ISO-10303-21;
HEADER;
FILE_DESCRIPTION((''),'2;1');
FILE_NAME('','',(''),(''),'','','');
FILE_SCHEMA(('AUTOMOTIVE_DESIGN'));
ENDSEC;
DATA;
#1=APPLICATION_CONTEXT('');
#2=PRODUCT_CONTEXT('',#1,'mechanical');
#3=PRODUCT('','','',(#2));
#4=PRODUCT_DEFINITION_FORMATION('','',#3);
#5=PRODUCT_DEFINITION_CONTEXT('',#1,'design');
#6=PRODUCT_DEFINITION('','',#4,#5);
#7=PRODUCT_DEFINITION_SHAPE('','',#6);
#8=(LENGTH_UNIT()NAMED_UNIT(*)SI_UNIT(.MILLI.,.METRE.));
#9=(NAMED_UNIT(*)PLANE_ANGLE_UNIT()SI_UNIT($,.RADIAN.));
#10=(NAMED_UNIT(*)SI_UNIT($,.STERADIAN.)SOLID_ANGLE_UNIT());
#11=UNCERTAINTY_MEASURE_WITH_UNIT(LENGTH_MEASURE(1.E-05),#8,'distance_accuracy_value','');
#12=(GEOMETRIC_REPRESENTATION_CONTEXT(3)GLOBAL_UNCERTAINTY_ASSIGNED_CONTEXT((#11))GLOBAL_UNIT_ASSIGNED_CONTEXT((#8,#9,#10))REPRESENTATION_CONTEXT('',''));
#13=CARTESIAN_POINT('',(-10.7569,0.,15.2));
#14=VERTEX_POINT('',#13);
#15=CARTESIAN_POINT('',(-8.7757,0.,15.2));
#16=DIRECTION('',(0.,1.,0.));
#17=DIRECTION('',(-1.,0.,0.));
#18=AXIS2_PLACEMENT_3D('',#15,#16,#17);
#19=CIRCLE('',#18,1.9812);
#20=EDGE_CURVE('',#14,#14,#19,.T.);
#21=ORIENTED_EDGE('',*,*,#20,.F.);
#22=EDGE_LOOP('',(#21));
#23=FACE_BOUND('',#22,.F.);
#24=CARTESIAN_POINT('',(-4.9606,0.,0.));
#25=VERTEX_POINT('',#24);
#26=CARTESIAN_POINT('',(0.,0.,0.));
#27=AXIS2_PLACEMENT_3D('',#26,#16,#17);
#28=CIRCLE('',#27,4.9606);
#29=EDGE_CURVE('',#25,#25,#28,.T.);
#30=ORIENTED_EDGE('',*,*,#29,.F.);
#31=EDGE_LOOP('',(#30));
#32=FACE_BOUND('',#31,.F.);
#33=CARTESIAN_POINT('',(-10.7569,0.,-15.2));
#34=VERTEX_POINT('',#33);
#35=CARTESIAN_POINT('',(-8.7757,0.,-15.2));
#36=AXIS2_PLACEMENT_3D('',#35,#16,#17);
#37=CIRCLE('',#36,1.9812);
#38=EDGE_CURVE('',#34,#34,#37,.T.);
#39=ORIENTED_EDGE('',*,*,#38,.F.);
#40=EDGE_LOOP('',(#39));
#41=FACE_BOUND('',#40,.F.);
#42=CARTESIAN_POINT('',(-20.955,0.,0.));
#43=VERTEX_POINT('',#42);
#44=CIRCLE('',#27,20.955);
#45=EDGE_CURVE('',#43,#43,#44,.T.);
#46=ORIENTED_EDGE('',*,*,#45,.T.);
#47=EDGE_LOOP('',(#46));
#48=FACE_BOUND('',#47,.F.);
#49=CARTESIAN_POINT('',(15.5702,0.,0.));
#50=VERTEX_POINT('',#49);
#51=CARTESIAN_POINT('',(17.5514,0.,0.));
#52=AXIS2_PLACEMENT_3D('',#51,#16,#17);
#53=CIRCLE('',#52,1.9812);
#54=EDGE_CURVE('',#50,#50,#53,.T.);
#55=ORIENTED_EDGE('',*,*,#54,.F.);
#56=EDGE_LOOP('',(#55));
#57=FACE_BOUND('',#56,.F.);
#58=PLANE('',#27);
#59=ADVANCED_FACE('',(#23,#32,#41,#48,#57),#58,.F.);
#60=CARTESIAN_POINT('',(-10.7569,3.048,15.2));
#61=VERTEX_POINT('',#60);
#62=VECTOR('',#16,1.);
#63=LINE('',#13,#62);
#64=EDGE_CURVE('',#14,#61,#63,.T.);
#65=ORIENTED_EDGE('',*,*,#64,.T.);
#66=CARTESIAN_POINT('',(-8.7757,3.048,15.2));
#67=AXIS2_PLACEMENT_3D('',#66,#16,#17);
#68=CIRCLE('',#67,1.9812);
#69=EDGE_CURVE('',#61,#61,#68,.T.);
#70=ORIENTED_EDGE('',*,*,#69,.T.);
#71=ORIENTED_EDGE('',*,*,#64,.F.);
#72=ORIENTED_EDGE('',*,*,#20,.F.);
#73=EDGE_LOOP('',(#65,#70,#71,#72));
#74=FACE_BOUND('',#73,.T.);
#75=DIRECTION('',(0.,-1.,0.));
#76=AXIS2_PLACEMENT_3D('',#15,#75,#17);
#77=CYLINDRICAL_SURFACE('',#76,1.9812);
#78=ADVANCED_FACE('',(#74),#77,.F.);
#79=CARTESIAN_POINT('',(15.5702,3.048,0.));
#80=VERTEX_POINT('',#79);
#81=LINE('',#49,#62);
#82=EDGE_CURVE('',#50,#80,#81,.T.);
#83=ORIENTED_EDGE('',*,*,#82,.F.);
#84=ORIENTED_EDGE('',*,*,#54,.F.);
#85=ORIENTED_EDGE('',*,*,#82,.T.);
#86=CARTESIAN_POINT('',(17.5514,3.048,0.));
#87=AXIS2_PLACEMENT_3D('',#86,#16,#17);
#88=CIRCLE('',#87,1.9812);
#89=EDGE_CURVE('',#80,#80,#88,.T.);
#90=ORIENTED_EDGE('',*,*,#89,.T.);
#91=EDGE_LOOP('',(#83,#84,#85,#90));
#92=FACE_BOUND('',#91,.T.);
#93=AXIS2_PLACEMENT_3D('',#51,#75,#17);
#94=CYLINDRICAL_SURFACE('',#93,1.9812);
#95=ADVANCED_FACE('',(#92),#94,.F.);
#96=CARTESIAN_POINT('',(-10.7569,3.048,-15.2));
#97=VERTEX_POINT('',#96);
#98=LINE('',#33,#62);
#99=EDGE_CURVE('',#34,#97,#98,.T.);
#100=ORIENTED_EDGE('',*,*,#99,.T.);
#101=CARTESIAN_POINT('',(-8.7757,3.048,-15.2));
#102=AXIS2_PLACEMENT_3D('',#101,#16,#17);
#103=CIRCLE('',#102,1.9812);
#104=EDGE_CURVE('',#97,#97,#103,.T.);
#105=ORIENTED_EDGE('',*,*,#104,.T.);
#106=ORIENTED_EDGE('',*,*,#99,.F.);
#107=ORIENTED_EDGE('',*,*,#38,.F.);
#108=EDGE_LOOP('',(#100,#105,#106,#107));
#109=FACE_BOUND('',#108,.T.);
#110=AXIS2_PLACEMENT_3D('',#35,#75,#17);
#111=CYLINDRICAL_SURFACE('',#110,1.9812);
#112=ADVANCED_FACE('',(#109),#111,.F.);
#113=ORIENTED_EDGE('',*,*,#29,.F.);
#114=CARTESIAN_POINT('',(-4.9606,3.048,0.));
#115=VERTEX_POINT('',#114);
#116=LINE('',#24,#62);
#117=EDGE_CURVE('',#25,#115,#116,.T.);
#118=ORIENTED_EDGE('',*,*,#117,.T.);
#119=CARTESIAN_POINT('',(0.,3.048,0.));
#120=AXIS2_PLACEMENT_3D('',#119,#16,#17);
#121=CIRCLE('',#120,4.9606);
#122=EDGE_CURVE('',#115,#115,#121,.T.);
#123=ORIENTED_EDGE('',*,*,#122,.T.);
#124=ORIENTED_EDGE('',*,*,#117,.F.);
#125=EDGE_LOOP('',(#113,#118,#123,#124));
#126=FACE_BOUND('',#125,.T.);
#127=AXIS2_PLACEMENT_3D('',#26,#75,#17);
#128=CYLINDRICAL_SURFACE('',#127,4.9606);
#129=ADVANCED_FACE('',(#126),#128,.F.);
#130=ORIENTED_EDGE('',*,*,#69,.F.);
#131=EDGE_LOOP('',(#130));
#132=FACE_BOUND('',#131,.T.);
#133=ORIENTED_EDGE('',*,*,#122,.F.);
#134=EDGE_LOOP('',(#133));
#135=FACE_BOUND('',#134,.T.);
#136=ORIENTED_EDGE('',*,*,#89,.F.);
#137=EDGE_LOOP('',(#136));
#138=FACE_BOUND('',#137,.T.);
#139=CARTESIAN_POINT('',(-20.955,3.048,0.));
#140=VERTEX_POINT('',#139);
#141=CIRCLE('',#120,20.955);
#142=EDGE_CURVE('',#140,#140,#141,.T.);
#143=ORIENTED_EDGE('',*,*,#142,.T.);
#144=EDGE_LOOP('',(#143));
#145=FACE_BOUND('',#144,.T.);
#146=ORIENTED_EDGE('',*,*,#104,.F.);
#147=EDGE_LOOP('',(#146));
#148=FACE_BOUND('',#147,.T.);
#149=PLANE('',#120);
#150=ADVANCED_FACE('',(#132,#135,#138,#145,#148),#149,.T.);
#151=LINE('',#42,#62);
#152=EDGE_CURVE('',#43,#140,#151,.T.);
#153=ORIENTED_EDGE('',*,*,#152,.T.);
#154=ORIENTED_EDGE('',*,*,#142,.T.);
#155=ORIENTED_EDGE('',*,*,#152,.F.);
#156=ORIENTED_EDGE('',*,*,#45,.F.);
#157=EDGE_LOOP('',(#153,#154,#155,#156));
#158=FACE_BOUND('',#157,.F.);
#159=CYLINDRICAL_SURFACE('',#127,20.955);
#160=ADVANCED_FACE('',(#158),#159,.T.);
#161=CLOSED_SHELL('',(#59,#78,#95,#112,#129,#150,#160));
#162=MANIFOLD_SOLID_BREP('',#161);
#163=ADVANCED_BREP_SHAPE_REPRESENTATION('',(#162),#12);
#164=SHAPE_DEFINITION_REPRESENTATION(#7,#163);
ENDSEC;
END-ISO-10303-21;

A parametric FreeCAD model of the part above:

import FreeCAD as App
import Part
import Sketcher
Q = App.Units.Quantity

doc = App.newDocument("Part")
body = doc.addObject("PartDesign::Body", "Body")

sketch1 = body.newObject("Sketcher::SketchObject", "Sketch")
sketch1.AttachmentSupport = (doc.getObject("XZ_Plane"), [""])
sketch1.MapMode = "FlatFace"
sketch1.addGeometry([
    Part.Circle(App.Vector(0, 0, 0), App.Vector(0, 0, 1), 21),
    Part.Circle(App.Vector(-8.8, -15.2, 0), App.Vector(0, 0, 1), 2),
    Part.Circle(App.Vector(17.6, 0, 0), App.Vector(0, 0, 1), 2),
    Part.Circle(App.Vector(0, 0, 0), App.Vector(0, 0, 1), 5),
    Part.Circle(App.Vector(-8.8, 15.2, 0), App.Vector(0, 0, 1), 2),
], False)
sketch1.addConstraint([
    Sketcher.Constraint("Coincident", 0, 3, -1, 1),
    Sketcher.Constraint("Coincident", 3, 3, -1, 1),
    Sketcher.Constraint("Equal", 1, 2),
    Sketcher.Constraint("Equal", 2, 4),
    Sketcher.Constraint("Symmetric", 1, 3, 4, 3, -1),
    Sketcher.Constraint("PointOnObject", 2, 3, -1),
    Sketcher.Constraint("Diameter", 0, Q("1.65 in")),
    Sketcher.Constraint("Diameter", 1, Q("0.156 in")),
    Sketcher.Constraint("Diameter", 3, Q("0.3906 in")),
    Sketcher.Constraint("DistanceX", -1, 1, 2, 3, Q("0.691 in")),
    Sketcher.Constraint("DistanceX", 1, 3, -1, 1, Q("0.3455 in")),
    Sketcher.Constraint("DistanceY", 1, 3, -1, 1, Q("15.2 mm")),
])
pad1 = body.newObject("PartDesign::Pad", "Pad")
pad1.Profile = sketch1
pad1.Length = Q("0.12 in")
pad1.Reversed = True

doc.recompute()
